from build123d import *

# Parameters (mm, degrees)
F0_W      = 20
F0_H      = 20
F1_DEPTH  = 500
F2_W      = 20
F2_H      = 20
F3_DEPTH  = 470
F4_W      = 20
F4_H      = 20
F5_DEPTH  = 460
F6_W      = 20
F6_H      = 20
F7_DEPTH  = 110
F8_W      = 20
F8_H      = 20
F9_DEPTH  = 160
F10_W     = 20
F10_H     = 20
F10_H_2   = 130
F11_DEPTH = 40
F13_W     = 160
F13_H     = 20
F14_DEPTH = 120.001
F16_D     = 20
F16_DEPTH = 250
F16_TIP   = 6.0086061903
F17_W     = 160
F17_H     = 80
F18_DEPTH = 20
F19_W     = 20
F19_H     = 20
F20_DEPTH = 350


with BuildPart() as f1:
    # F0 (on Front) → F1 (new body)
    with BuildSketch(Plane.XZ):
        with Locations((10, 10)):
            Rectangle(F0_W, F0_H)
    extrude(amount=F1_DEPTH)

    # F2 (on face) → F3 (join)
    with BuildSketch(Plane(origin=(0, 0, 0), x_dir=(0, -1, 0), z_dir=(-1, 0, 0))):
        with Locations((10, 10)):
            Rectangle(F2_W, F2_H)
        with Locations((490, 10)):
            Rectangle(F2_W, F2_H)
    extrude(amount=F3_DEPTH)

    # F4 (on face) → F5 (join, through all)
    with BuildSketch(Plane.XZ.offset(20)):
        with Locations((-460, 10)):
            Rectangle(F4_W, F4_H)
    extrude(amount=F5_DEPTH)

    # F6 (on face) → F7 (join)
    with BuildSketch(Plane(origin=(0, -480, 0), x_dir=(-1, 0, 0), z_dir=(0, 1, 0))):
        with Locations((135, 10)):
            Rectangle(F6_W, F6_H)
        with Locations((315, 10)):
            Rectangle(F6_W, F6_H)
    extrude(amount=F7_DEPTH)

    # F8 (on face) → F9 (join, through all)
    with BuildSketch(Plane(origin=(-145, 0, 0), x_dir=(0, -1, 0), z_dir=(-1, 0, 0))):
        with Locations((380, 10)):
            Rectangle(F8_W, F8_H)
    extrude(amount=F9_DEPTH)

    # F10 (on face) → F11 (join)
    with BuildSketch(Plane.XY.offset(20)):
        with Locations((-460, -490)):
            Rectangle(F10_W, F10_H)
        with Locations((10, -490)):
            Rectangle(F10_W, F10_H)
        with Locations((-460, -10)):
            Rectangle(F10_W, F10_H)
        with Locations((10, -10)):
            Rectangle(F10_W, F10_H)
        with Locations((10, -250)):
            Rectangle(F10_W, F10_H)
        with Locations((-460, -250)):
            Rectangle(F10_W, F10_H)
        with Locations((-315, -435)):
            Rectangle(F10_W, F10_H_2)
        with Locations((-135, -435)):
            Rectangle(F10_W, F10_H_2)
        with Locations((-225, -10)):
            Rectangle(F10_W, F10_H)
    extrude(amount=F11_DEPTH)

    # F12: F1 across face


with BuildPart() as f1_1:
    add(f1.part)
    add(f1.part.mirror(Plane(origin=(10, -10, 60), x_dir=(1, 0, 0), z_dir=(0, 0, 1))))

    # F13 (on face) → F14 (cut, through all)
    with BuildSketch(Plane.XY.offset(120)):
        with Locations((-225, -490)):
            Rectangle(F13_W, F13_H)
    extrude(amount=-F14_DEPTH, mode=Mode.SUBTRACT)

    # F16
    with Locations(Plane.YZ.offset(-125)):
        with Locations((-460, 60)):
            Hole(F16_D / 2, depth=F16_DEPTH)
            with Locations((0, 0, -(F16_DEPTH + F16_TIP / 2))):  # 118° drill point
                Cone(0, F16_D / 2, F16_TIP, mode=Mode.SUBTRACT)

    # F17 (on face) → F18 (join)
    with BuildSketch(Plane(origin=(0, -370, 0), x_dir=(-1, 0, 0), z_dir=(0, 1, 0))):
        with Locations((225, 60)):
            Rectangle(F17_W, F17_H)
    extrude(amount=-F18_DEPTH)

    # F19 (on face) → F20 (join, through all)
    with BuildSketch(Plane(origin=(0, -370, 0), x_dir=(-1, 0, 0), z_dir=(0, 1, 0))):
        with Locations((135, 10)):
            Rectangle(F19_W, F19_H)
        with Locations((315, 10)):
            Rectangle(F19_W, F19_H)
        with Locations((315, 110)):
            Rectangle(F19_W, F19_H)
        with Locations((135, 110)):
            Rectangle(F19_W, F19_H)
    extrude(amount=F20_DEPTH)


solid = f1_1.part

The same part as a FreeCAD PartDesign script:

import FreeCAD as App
import Part
import Sketcher
from FreeCAD import Vector

doc = App.newDocument("Part")
body = doc.addObject("PartDesign::Body", "Body")

# Sketch on XZ plane
sketch1 = body.newObject("Sketcher::SketchObject", "Sketch")
sketch1.AttachmentSupport = (doc.getObject("XZ_Plane"), [""])
sketch1.MapMode = "FlatFace"
sketch1.addGeometry([
    Part.LineSegment(Vector(0, 20, 0), Vector(0, 0, 0)),
    Part.LineSegment(Vector(0, 0, 0), Vector(20, 0, 0)),
    Part.LineSegment(Vector(20, 0, 0), Vector(20, 20, 0)),
    Part.LineSegment(Vector(20, 20, 0), Vector(0, 20, 0)),
], False)
sketch1.addConstraint([
    Sketcher.Constraint("Coincident", 0, 2, 1, 1),
    Sketcher.Constraint("Coincident", 1, 2, 2, 1),
    Sketcher.Constraint("Coincident", 2, 2, 3, 1),
    Sketcher.Constraint("Coincident", 3, 2, 0, 1),
    Sketcher.Constraint("Vertical", 0),
    Sketcher.Constraint("Horizontal", 1),
    Sketcher.Constraint("Vertical", 2),
    Sketcher.Constraint("Horizontal", 3),
    Sketcher.Constraint("Coincident", 0, 2, -1, 1),
    Sketcher.Constraint("Equal", 3, 0),
    Sketcher.Constraint("DistanceX", 1, 1, 1, 2, 20.0),
])
pad1 = body.newObject("PartDesign::Pad", "Pad")
pad1.Profile = sketch1
pad1.Length = 500

# Sketch on YZ plane
sketch2 = body.newObject("Sketcher::SketchObject", "Sketch001")
sketch2.AttachmentSupport = (doc.getObject("YZ_Plane"), [""])
sketch2.MapMode = "FlatFace"
sketch2.addGeometry([
    Part.LineSegment(Vector(0, 20, 0), Vector(0, 0, 0)),  # 0
    Part.LineSegment(Vector(0, 0, 0), Vector(-20, 0, 0)),  # 1
    Part.LineSegment(Vector(-20, 0, 0), Vector(-20, 20, 0)),  # 2
    Part.LineSegment(Vector(-20, 20, 0), Vector(0, 20, 0)),  # 3
    Part.LineSegment(Vector(-480, 20, 0), Vector(-480, 0, 0)),  # 4
    Part.LineSegment(Vector(-480, 0, 0), Vector(-500, 0, 0)),  # 5
    Part.LineSegment(Vector(-500, 0, 0), Vector(-500, 20, 0)),  # 6
    Part.LineSegment(Vector(-500, 20, 0), Vector(-480, 20, 0)),  # 7
], False)
sketch2.addConstraint([
    Sketcher.Constraint("Coincident", 0, 2, 1, 1),
    Sketcher.Constraint("Coincident", 1, 2, 2, 1),
    Sketcher.Constraint("Coincident", 2, 2, 3, 1),
    Sketcher.Constraint("Coincident", 3, 2, 0, 1),
    Sketcher.Constraint("Coincident", 4, 2, 5, 1),
    Sketcher.Constraint("Coincident", 5, 2, 6, 1),
    Sketcher.Constraint("Coincident", 6, 2, 7, 1),
    Sketcher.Constraint("Coincident", 7, 2, 4, 1),
    Sketcher.Constraint("Vertical", 0),
    Sketcher.Constraint("Horizontal", 1),
    Sketcher.Constraint("Vertical", 2),
    Sketcher.Constraint("Horizontal", 3),
    Sketcher.Constraint("Vertical", 4),
    Sketcher.Constraint("Horizontal", 5),
    Sketcher.Constraint("Vertical", 6),
    Sketcher.Constraint("Horizontal", 7),
    Sketcher.Constraint("Coincident", 0, 2, -1, 1),
    Sketcher.Constraint("PointOnObject", 4, 2, -1),
    Sketcher.Constraint("Horizontal", 3, 2, 6, 2),
    Sketcher.Constraint("Equal", 3, 5),
    Sketcher.Constraint("Equal", 7, 0),
    Sketcher.Constraint("DistanceX", 1, 2, 1, 1, 20.0),
    Sketcher.Constraint("DistanceX", 4, 2, -1, 1, 480.0),
])
pad2 = body.newObject("PartDesign::Pad", "Pad001")
pad2.Profile = sketch2
pad2.Length = 470
pad2.Reversed = True

# Sketch on XZ plane
sketch3 = body.newObject("Sketcher::SketchObject", "Sketch002")
sketch3.AttachmentSupport = (doc.getObject("XZ_Plane"), [""])
sketch3.MapMode = "FlatFace"
sketch3.AttachmentOffset = App.Placement(Vector(0, 0, 20), App.Rotation())
sketch3.addGeometry([
    Part.LineSegment(Vector(-470, 20, 0), Vector(-470, 0, 0)),
    Part.LineSegment(Vector(-470, 0, 0), Vector(-450, 0, 0)),
    Part.LineSegment(Vector(-450, 0, 0), Vector(-450, 20, 0)),
    Part.LineSegment(Vector(-450, 20, 0), Vector(-470, 20, 0)),
], False)
sketch3.addConstraint([
    Sketcher.Constraint("Coincident", 0, 2, 1, 1),
    Sketcher.Constraint("Coincident", 1, 2, 2, 1),
    Sketcher.Constraint("Coincident", 2, 2, 3, 1),
    Sketcher.Constraint("Coincident", 3, 2, 0, 1),
    Sketcher.Constraint("Vertical", 0),
    Sketcher.Constraint("Horizontal", 1),
    Sketcher.Constraint("Vertical", 2),
    Sketcher.Constraint("Horizontal", 3),
    Sketcher.Constraint("PointOnObject", 0, 2, -1),
    Sketcher.Constraint("Equal", 3, 0),
    Sketcher.Constraint("DistanceX", 1, 1, 1, 2, 20.0),
    Sketcher.Constraint("DistanceX", 0, 2, -1, 1, 470.0),
])
pad3 = body.newObject("PartDesign::Pad", "Pad002")
pad3.Profile = sketch3
pad3.Type = "UpToLast"

# Sketch on XZ plane
sketch4 = body.newObject("Sketcher::SketchObject", "Sketch003")
sketch4.AttachmentSupport = (doc.getObject("XZ_Plane"), [""])
sketch4.MapMode = "FlatFace"
sketch4.AttachmentOffset = App.Placement(Vector(0, 0, 480), App.Rotation())
sketch4.addGeometry([
    Part.LineSegment(Vector(-125, 20, 0), Vector(-125, 0, 0)),  # 0
    Part.LineSegment(Vector(-125, 0, 0), Vector(-145, 0, 0)),  # 1
    Part.LineSegment(Vector(-145, 0, 0), Vector(-145, 20, 0)),  # 2
    Part.LineSegment(Vector(-145, 20, 0), Vector(-125, 20, 0)),  # 3
    Part.LineSegment(Vector(-305, 20, 0), Vector(-305, 0, 0)),  # 4
    Part.LineSegment(Vector(-305, 0, 0), Vector(-325, 0, 0)),  # 5
    Part.LineSegment(Vector(-325, 0, 0), Vector(-325, 20, 0)),  # 6
    Part.LineSegment(Vector(-325, 20, 0), Vector(-305, 20, 0)),  # 7
], False)
sketch4.addConstraint([
    Sketcher.Constraint("Coincident", 0, 2, 1, 1),
    Sketcher.Constraint("Coincident", 1, 2, 2, 1),
    Sketcher.Constraint("Coincident", 2, 2, 3, 1),
    Sketcher.Constraint("Coincident", 3, 2, 0, 1),
    Sketcher.Constraint("Coincident", 4, 2, 5, 1),
    Sketcher.Constraint("Coincident", 5, 2, 6, 1),
    Sketcher.Constraint("Coincident", 6, 2, 7, 1),
    Sketcher.Constraint("Coincident", 7, 2, 4, 1),
    Sketcher.Constraint("Vertical", 0),
    Sketcher.Constraint("Horizontal", 1),
    Sketcher.Constraint("Vertical", 2),
    Sketcher.Constraint("Horizontal", 3),
    Sketcher.Constraint("Vertical", 4),
    Sketcher.Constraint("Horizontal", 5),
    Sketcher.Constraint("Vertical", 6),
    Sketcher.Constraint("Horizontal", 7),
    Sketcher.Constraint("PointOnObject", 0, 2, -1),
    Sketcher.Constraint("PointOnObject", 4, 2, -1),
    Sketcher.Constraint("Horizontal", 3, 2, 6, 2),
    Sketcher.Constraint("Equal", 3, 5),
    Sketcher.Constraint("Equal", 7, 0),
    Sketcher.Constraint("DistanceX", 1, 2, 1, 1, 20.0),
    Sketcher.Constraint("DistanceX", 0, 2, -1, 1, 125.0),
    Sketcher.Constraint("DistanceX", 4, 2, -1, 1, 305.0),
])
pad4 = body.newObject("PartDesign::Pad", "Pad003")
pad4.Profile = sketch4
pad4.Length = 110
pad4.Reversed = True

# Sketch on YZ plane
sketch5 = body.newObject("Sketcher::SketchObject", "Sketch004")
sketch5.AttachmentSupport = (doc.getObject("YZ_Plane"), [""])
sketch5.MapMode = "FlatFace"
sketch5.AttachmentOffset = App.Placement(Vector(0, 0, -145), App.Rotation())
sketch5.addGeometry([
    Part.LineSegment(Vector(-370, 20, 0), Vector(-370, 0, 0)),
    Part.LineSegment(Vector(-370, 0, 0), Vector(-390, 0, 0)),
    Part.LineSegment(Vector(-390, 0, 0), Vector(-390, 20, 0)),
    Part.LineSegment(Vector(-390, 20, 0), Vector(-370, 20, 0)),
], False)
sketch5.addConstraint([
    Sketcher.Constraint("Coincident", 0, 2, 1, 1),
    Sketcher.Constraint("Coincident", 1, 2, 2, 1),
    Sketcher.Constraint("Coincident", 2, 2, 3, 1),
    Sketcher.Constraint("Coincident", 3, 2, 0, 1),
    Sketcher.Constraint("Vertical", 0),
    Sketcher.Constraint("Horizontal", 1),
    Sketcher.Constraint("Vertical", 2),
    Sketcher.Constraint("Horizontal", 3),
    Sketcher.Constraint("PointOnObject", 0, 2, -1),
    Sketcher.Constraint("Equal", 3, 0),
    Sketcher.Constraint("DistanceX", 1, 2, 1, 1, 20.0),
    Sketcher.Constraint("DistanceX", 0, 2, -1, 1, 370.0),
])
pad5 = body.newObject("PartDesign::Pad", "Pad004")
pad5.Profile = sketch5
pad5.Length = 160
pad5.Reversed = True

# Sketch on XY plane
sketch6 = body.newObject("Sketcher::SketchObject", "Sketch005")
sketch6.AttachmentSupport = (doc.getObject("XY_Plane"), [""])
sketch6.MapMode = "FlatFace"
sketch6.AttachmentOffset = App.Placement(Vector(0, 0, 20), App.Rotation())
sketch6.addGeometry([
    Part.LineSegment(Vector(-470, -480, 0), Vector(-470, -500, 0)),  # 0
    Part.LineSegment(Vector(-470, -500, 0), Vector(-450, -500, 0)),  # 1
    Part.LineSegment(Vector(-450, -500, 0), Vector(-450, -480, 0)),  # 2
    Part.LineSegment(Vector(-450, -480, 0), Vector(-470, -480, 0)),  # 3
    Part.LineSegment(Vector(0, -480, 0), Vector(0, -500, 0)),  # 4
    Part.LineSegment(Vector(0, -500, 0), Vector(20, -500, 0)),  # 5
    Part.LineSegment(Vector(20, -500, 0), Vector(20, -480, 0)),  # 6
    Part.LineSegment(Vector(20, -480, 0), Vector(0, -480, 0)),  # 7
    Part.LineSegment(Vector(-470, 0, 0), Vector(-470, -20, 0)),  # 8
    Part.LineSegment(Vector(-470, -20, 0), Vector(-450, -20, 0)),  # 9
    Part.LineSegment(Vector(-450, -20, 0), Vector(-450, 0, 0)),  # 10
    Part.LineSegment(Vector(-450, 0, 0), Vector(-470, 0, 0)),  # 11
    Part.LineSegment(Vector(0, 0, 0), Vector(0, -20, 0)),  # 12
    Part.LineSegment(Vector(0, -20, 0), Vector(20, -20, 0)),  # 13
    Part.LineSegment(Vector(20, -20, 0), Vector(20, 0, 0)),  # 14
    Part.LineSegment(Vector(20, 0, 0), Vector(0, 0, 0)),  # 15
    Part.LineSegment(Vector(0, -240, 0), Vector(0, -260, 0)),  # 16
    Part.LineSegment(Vector(0, -260, 0), Vector(20, -260, 0)),  # 17
    Part.LineSegment(Vector(20, -260, 0), Vector(20, -240, 0)),  # 18
    Part.LineSegment(Vector(20, -240, 0), Vector(0, -240, 0)),  # 19
    Part.LineSegment(Vector(-470, -240, 0), Vector(-470, -260, 0)),  # 20
    Part.LineSegment(Vector(-470, -260, 0), Vector(-450, -260, 0)),  # 21
    Part.LineSegment(Vector(-450, -260, 0), Vector(-450, -240, 0)),  # 22
    Part.LineSegment(Vector(-450, -240, 0), Vector(-470, -240, 0)),  # 23
    Part.LineSegment(Vector(-325, -370, 0), Vector(-325, -500, 0)),  # 24
    Part.LineSegment(Vector(-325, -500, 0), Vector(-305, -500, 0)),  # 25
    Part.LineSegment(Vector(-305, -500, 0), Vector(-305, -370, 0)),  # 26
    Part.LineSegment(Vector(-305, -370, 0), Vector(-325, -370, 0)),  # 27
    Part.LineSegment(Vector(-145, -370, 0), Vector(-145, -500, 0)),  # 28
    Part.LineSegment(Vector(-145, -500, 0), Vector(-125, -500, 0)),  # 29
    Part.LineSegment(Vector(-125, -500, 0), Vector(-125, -370, 0)),  # 30
    Part.LineSegment(Vector(-125, -370, 0), Vector(-145, -370, 0)),  # 31
    Part.LineSegment(Vector(-235, 0, 0), Vector(-235, -20, 0)),  # 32
    Part.LineSegment(Vector(-235, -20, 0), Vector(-215, -20, 0)),  # 33
    Part.LineSegment(Vector(-215, -20, 0), Vector(-215, 0, 0)),  # 34
    Part.LineSegment(Vector(-215, 0, 0), Vector(-235, 0, 0)),  # 35
], False)
sketch6.addConstraint([
    Sketcher.Constraint("Coincident", 0, 2, 1, 1),
    Sketcher.Constraint("Coincident", 1, 2, 2, 1),
    Sketcher.Constraint("Coincident", 2, 2, 3, 1),
    Sketcher.Constraint("Coincident", 3, 2, 0, 1),
    Sketcher.Constraint("Coincident", 4, 2, 5, 1),
    Sketcher.Constraint("Coincident", 5, 2, 6, 1),
    Sketcher.Constraint("Coincident", 6, 2, 7, 1),
    Sketcher.Constraint("Coincident", 7, 2, 4, 1),
    Sketcher.Constraint("Coincident", 8, 2, 9, 1),
    Sketcher.Constraint("Coincident", 9, 2, 10, 1),
    Sketcher.Constraint("Coincident", 10, 2, 11, 1),
    Sketcher.Constraint("Coincident", 11, 2, 8, 1),
    Sketcher.Constraint("Coincident", 12, 2, 13, 1),
    Sketcher.Constraint("Coincident", 13, 2, 14, 1),
    Sketcher.Constraint("Coincident", 14, 2, 15, 1),
    Sketcher.Constraint("Coincident", 15, 2, 12, 1),
    Sketcher.Constraint("Coincident", 16, 2, 17, 1),
    Sketcher.Constraint("Coincident", 17, 2, 18, 1),
    Sketcher.Constraint("Coincident", 18, 2, 19, 1),
    Sketcher.Constraint("Coincident", 19, 2, 16, 1),
    Sketcher.Constraint("Coincident", 20, 2, 21, 1),
    Sketcher.Constraint("Coincident", 21, 2, 22, 1),
    Sketcher.Constraint("Coincident", 22, 2, 23, 1),
    Sketcher.Constraint("Coincident", 23, 2, 20, 1),
    Sketcher.Constraint("Coincident", 24, 2, 25, 1),
    Sketcher.Constraint("Coincident", 25, 2, 26, 1),
    Sketcher.Constraint("Coincident", 26, 2, 27, 1),
    Sketcher.Constraint("Coincident", 27, 2, 24, 1),
    Sketcher.Constraint("Coincident", 28, 2, 29, 1),
    Sketcher.Constraint("Coincident", 29, 2, 30, 1),
    Sketcher.Constraint("Coincident", 30, 2, 31, 1),
    Sketcher.Constraint("Coincident", 31, 2, 28, 1),
    Sketcher.Constraint("Coincident", 32, 2, 33, 1),
    Sketcher.Constraint("Coincident", 33, 2, 34, 1),
    Sketcher.Constraint("Coincident", 34, 2, 35, 1),
    Sketcher.Constraint("Coincident", 35, 2, 32, 1),
    Sketcher.Constraint("Vertical", 0),
    Sketcher.Constraint("Horizontal", 1),
    Sketcher.Constraint("Vertical", 2),
    Sketcher.Constraint("Horizontal", 3),
    Sketcher.Constraint("Vertical", 4),
    Sketcher.Constraint("Horizontal", 5),
    Sketcher.Constraint("Vertical", 6),
    Sketcher.Constraint("Horizontal", 7),
    Sketcher.Constraint("Vertical", 8),
    Sketcher.Constraint("Horizontal", 9),
    Sketcher.Constraint("Vertical", 10),
    Sketcher.Constraint("Horizontal", 11),
    Sketcher.Constraint("Vertical", 12),
    Sketcher.Constraint("Horizontal", 13),
    Sketcher.Constraint("Vertical", 14),
    Sketcher.Constraint("Horizontal", 15),
    Sketcher.Constraint("Vertical", 16),
    Sketcher.Constraint("Horizontal", 17),
    Sketcher.Constraint("Vertical", 18),
    Sketcher.Constraint("Horizontal", 19),
    Sketcher.Constraint("Vertical", 20),
    Sketcher.Constraint("Horizontal", 21),
    Sketcher.Constraint("Vertical", 22),
    Sketcher.Constraint("Horizontal", 23),
    Sketcher.Constraint("Vertical", 24),
    Sketcher.Constraint("Horizontal", 25),
    Sketcher.Constraint("Vertical", 26),
    Sketcher.Constraint("Horizontal", 27),
    Sketcher.Constraint("Vertical", 28),
    Sketcher.Constraint("Horizontal", 29),
    Sketcher.Constraint("Vertical", 30),
    Sketcher.Constraint("Horizontal", 31),
    Sketcher.Constraint("Vertical", 32),
    Sketcher.Constraint("Horizontal", 33),
    Sketcher.Constraint("Vertical", 34),
    Sketcher.Constraint("Horizontal", 35),
    Sketcher.Constraint("Coincident", 15, 2, -1, 1),
    Sketcher.Constraint("PointOnObject", 4, 2, -2),
    Sketcher.Constraint("PointOnObject", 10, 2, -1),
    Sketcher.Constraint("PointOnObject", 16, 2, -2),
    Sketcher.Constraint("PointOnObject", 34, 2, -1),
    Sketcher.Constraint("Horizontal", 1, 2, 4, 2),
    Sketcher.Constraint("Horizontal", 3, 2, 6, 2),
    Sketcher.Constraint("Horizontal", 9, 2, 12, 2),
    Sketcher.Constraint("Horizontal", 17, 2, 20, 2),
    Sketcher.Constraint("Horizontal", 19, 2, 22, 2),
    Sketcher.Constraint("Horizontal", 5, 2, 24, 2),
    Sketcher.Constraint("Horizontal", 25, 2, 28, 2),
    Sketcher.Constraint("Horizontal", 27, 2, 30, 2),
    Sketcher.Constraint("Horizontal", 13, 2, 32, 2),
    Sketcher.Constraint("Vertical", 3, 2, 8, 2),
    Sketcher.Constraint("Vertical", 2, 2, 9, 2),
    Sketcher.Constraint("Vertical", 6, 2, 13, 2),
    Sketcher.Constraint("Vertical", 14, 2, 17, 2),
    Sketcher.Constraint("Vertical", 11, 2, 20, 2),
    Sketcher.Constraint("Vertical", 10, 2, 21, 2),
    Sketcher.Constraint("Equal", 3, 5),
    Sketcher.Constraint("Equal", 23, 25),
    Sketcher.Constraint("Equal", 27, 29),
    Sketcher.Constraint("Equal", 31, 33),
    Sketcher.Constraint("Equal", 35, 0),
    Sketcher.Constraint("Equal", 6, 8),
    Sketcher.Constraint("Equal", 14, 16),
    Sketcher.Constraint("DistanceX", 1, 1, 1, 2, 20.0),
    Sketcher.Constraint("DistanceY", 24, 2, 24, 1, 130.0),
    Sketcher.Constraint("DistanceX", 0, 2, -1, 1, 470.0),
    Sketcher.Constraint("DistanceY", 0, 2, -1, 1, 500.0),
    Sketcher.Constraint("DistanceY", 16, 2, -1, 1, 260.0),
    Sketcher.Constraint("DistanceX", 24, 2, -1, 1, 325.0),
    Sketcher.Constraint("DistanceX", 28, 2, -1, 1, 145.0),
    Sketcher.Constraint("DistanceX", 32, 2, -1, 1, 235.0),
])
pad6 = body.newObject("PartDesign::Pad", "Pad005")
pad6.Profile = sketch6
pad6.Length = 40
body2 = doc.addObject("PartDesign::Body", "Body001")
doc.recompute()

body2.BaseFeature = body
doc.recompute()

mirroring = doc.addObject("Part::Mirroring", "Mirroring")
mirroring.Source = body
mirroring.Base = Vector(10, -10, 60)
mirroring.Normal = Vector(0, 0, 1)
body3 = doc.addObject("PartDesign::Body", "Body002")
body3.BaseFeature = mirroring
boolean = body2.newObject("PartDesign::Boolean", "Boolean")
boolean.Type = "Fuse"
boolean.addObjects([body3])
doc.recompute()

# Sketch on XY plane
sketch7 = body2.newObject("Sketcher::SketchObject", "Sketch006")
sketch7.AttachmentSupport = (doc.getObject("XY_Plane001"), [""])
sketch7.MapMode = "FlatFace"
sketch7.AttachmentOffset = App.Placement(Vector(0, 0, 120), App.Rotation())
sketch7.addGeometry([
    Part.LineSegment(Vector(-305, -480, 0), Vector(-305, -500, 0)),
    Part.LineSegment(Vector(-305, -500, 0), Vector(-145, -500, 0)),
    Part.LineSegment(Vector(-145, -500, 0), Vector(-145, -480, 0)),
    Part.LineSegment(Vector(-145, -480, 0), Vector(-305, -480, 0)),
], False)
sketch7.addConstraint([
    Sketcher.Constraint("Coincident", 0, 2, 1, 1),
    Sketcher.Constraint("Coincident", 1, 2, 2, 1),
    Sketcher.Constraint("Coincident", 2, 2, 3, 1),
    Sketcher.Constraint("Coincident", 3, 2, 0, 1),
    Sketcher.Constraint("Vertical", 0),
    Sketcher.Constraint("Horizontal", 1),
    Sketcher.Constraint("Vertical", 2),
    Sketcher.Constraint("Horizontal", 3),
    Sketcher.Constraint("DistanceX", 1, 1, 1, 2, 160.0),
    Sketcher.Constraint("DistanceY", 0, 2, 0, 1, 20.0),
    Sketcher.Constraint("DistanceX", 0, 2, -1, 1, 305.0),
    Sketcher.Constraint("DistanceY", 0, 2, -1, 1, 500.0),
])
pocket1 = body2.newObject("PartDesign::Pocket", "Pocket")
pocket1.Profile = sketch7
pocket1.Type = "ThroughAll"

# Sketch on YZ plane
sketch8 = body2.newObject("Sketcher::SketchObject", "Sketch007")
sketch8.AttachmentSupport = (doc.getObject("YZ_Plane001"), [""])
sketch8.MapMode = "FlatFace"
sketch8.AttachmentOffset = App.Placement(Vector(0, 0, -125), App.Rotation())
sketch8.addGeometry(Part.Circle(Vector(-460, 60, 0), Vector(0, 0, 1), 10), False)
sketch8.addConstraint([
    Sketcher.Constraint("Diameter", 0, 20.0),
    Sketcher.Constraint("DistanceX", 0, 3, -1, 1, 460.0),
    Sketcher.Constraint("DistanceY", -1, 1, 0, 3, 60.0),
])
doc.recompute()
hole = body2.newObject("PartDesign::Hole", "Hole")
hole.Profile = sketch8
hole.ThreadType = "None"
hole.Diameter = 20
hole.DepthType = "Dimension"
hole.Depth = 250
hole.DrillPoint = "Angled"
hole.DrillPointAngle = 118

# Sketch on XZ plane
sketch9 = body2.newObject("Sketcher::SketchObject", "Sketch008")
sketch9.AttachmentSupport = (doc.getObject("XZ_Plane001"), [""])
sketch9.MapMode = "FlatFace"
sketch9.AttachmentOffset = App.Placement(Vector(0, 0, 370), App.Rotation())
sketch9.addGeometry([
    Part.LineSegment(Vector(-145, 100, 0), Vector(-145, 20, 0)),
    Part.LineSegment(Vector(-145, 20, 0), Vector(-305, 20, 0)),
    Part.LineSegment(Vector(-305, 20, 0), Vector(-305, 100, 0)),
    Part.LineSegment(Vector(-305, 100, 0), Vector(-145, 100, 0)),
], False)
sketch9.addConstraint([
    Sketcher.Constraint("Coincident", 0, 2, 1, 1),
    Sketcher.Constraint("Coincident", 1, 2, 2, 1),
    Sketcher.Constraint("Coincident", 2, 2, 3, 1),
    Sketcher.Constraint("Coincident", 3, 2, 0, 1),
    Sketcher.Constraint("Vertical", 0),
    Sketcher.Constraint("Horizontal", 1),
    Sketcher.Constraint("Vertical", 2),
    Sketcher.Constraint("Horizontal", 3),
    Sketcher.Constraint("DistanceX", 1, 2, 1, 1, 160.0),
    Sketcher.Constraint("DistanceY", 0, 2, 0, 1, 80.0),
    Sketcher.Constraint("DistanceX", 0, 2, -1, 1, 145.0),
    Sketcher.Constraint("DistanceY", -1, 1, 0, 2, 20.0),
])
pad7 = body2.newObject("PartDesign::Pad", "Pad006")
pad7.Profile = sketch9
pad7.Length = 20

# Sketch on XZ plane
sketch10 = body2.newObject("Sketcher::SketchObject", "Sketch009")
sketch10.AttachmentSupport = (doc.getObject("XZ_Plane001"), [""])
sketch10.MapMode = "FlatFace"
sketch10.AttachmentOffset = App.Placement(Vector(0, 0, 370), App.Rotation())
sketch10.addGeometry([
    Part.LineSegment(Vector(-125, 20, 0), Vector(-125, 0, 0)),  # 0
    Part.LineSegment(Vector(-125, 0, 0), Vector(-145, 0, 0)),  # 1
    Part.LineSegment(Vector(-145, 0, 0), Vector(-145, 20, 0)),  # 2
    Part.LineSegment(Vector(-145, 20, 0), Vector(-125, 20, 0)),  # 3
    Part.LineSegment(Vector(-305, 20, 0), Vector(-305, 0, 0)),  # 4
    Part.LineSegment(Vector(-305, 0, 0), Vector(-325, 0, 0)),  # 5
    Part.LineSegment(Vector(-325, 0, 0), Vector(-325, 20, 0)),  # 6
    Part.LineSegment(Vector(-325, 20, 0), Vector(-305, 20, 0)),  # 7
    Part.LineSegment(Vector(-305, 120, 0), Vector(-305, 100, 0)),  # 8
    Part.LineSegment(Vector(-305, 100, 0), Vector(-325, 100, 0)),  # 9
    Part.LineSegment(Vector(-325, 100, 0), Vector(-325, 120, 0)),  # 10
    Part.LineSegment(Vector(-325, 120, 0), Vector(-305, 120, 0)),  # 11
    Part.LineSegment(Vector(-125, 120, 0), Vector(-125, 100, 0)),  # 12
    Part.LineSegment(Vector(-125, 100, 0), Vector(-145, 100, 0)),  # 13
    Part.LineSegment(Vector(-145, 100, 0), Vector(-145, 120, 0)),  # 14
    Part.LineSegment(Vector(-145, 120, 0), Vector(-125, 120, 0)),  # 15
], False)
sketch10.addConstraint([
    Sketcher.Constraint("Coincident", 0, 2, 1, 1),
    Sketcher.Constraint("Coincident", 1, 2, 2, 1),
    Sketcher.Constraint("Coincident", 2, 2, 3, 1),
    Sketcher.Constraint("Coincident", 3, 2, 0, 1),
    Sketcher.Constraint("Coincident", 4, 2, 5, 1),
    Sketcher.Constraint("Coincident", 5, 2, 6, 1),
    Sketcher.Constraint("Coincident", 6, 2, 7, 1),
    Sketcher.Constraint("Coincident", 7, 2, 4, 1),
    Sketcher.Constraint("Coincident", 8, 2, 9, 1),
    Sketcher.Constraint("Coincident", 9, 2, 10, 1),
    Sketcher.Constraint("Coincident", 10, 2, 11, 1),
    Sketcher.Constraint("Coincident", 11, 2, 8, 1),
    Sketcher.Constraint("Coincident", 12, 2, 13, 1),
    Sketcher.Constraint("Coincident", 13, 2, 14, 1),
    Sketcher.Constraint("Coincident", 14, 2, 15, 1),
    Sketcher.Constraint("Coincident", 15, 2, 12, 1),
    Sketcher.Constraint("Vertical", 0),
    Sketcher.Constraint("Horizontal", 1),
    Sketcher.Constraint("Vertical", 2),
    Sketcher.Constraint("Horizontal", 3),
    Sketcher.Constraint("Vertical", 4),
    Sketcher.Constraint("Horizontal", 5),
    Sketcher.Constraint("Vertical", 6),
    Sketcher.Constraint("Horizontal", 7),
    Sketcher.Constraint("Vertical", 8),
    Sketcher.Constraint("Horizontal", 9),
    Sketcher.Constraint("Vertical", 10),
    Sketcher.Constraint("Horizontal", 11),
    Sketcher.Constraint("Vertical", 12),
    Sketcher.Constraint("Horizontal", 13),
    Sketcher.Constraint("Vertical", 14),
    Sketcher.Constraint("Horizontal", 15),
    Sketcher.Constraint("PointOnObject", 0, 2, -1),
    Sketcher.Constraint("PointOnObject", 4, 2, -1),
    Sketcher.Constraint("Horizontal", 3, 2, 6, 2),
    Sketcher.Constraint("Horizontal", 9, 2, 12, 2),
    Sketcher.Constraint("Horizontal", 11, 2, 14, 2),
    Sketcher.Constraint("Vertical", 7, 2, 8, 2),
    Sketcher.Constraint("Vertical", 6, 2, 9, 2),
    Sketcher.Constraint("Vertical", 3, 2, 12, 2),
    Sketcher.Constraint("Vertical", 2, 2, 13, 2),
    Sketcher.Constraint("Equal", 3, 5),
    Sketcher.Constraint("Equal", 15, 0),
    Sketcher.Constraint("Equal", 6, 8),
    Sketcher.Constraint("DistanceX", 1, 2, 1, 1, 20.0),
    Sketcher.Constraint("DistanceX", 0, 2, -1, 1, 125.0),
    Sketcher.Constraint("DistanceX", 4, 2, -1, 1, 305.0),
    Sketcher.Constraint("DistanceY", -1, 1, 8, 2, 100.0),
])
pad8 = body2.newObject("PartDesign::Pad", "Pad007")
pad8.Profile = sketch10
pad8.Type = "UpToLast"
pad8.Reversed = True
mirroring.Visibility = False

doc.recompute()
